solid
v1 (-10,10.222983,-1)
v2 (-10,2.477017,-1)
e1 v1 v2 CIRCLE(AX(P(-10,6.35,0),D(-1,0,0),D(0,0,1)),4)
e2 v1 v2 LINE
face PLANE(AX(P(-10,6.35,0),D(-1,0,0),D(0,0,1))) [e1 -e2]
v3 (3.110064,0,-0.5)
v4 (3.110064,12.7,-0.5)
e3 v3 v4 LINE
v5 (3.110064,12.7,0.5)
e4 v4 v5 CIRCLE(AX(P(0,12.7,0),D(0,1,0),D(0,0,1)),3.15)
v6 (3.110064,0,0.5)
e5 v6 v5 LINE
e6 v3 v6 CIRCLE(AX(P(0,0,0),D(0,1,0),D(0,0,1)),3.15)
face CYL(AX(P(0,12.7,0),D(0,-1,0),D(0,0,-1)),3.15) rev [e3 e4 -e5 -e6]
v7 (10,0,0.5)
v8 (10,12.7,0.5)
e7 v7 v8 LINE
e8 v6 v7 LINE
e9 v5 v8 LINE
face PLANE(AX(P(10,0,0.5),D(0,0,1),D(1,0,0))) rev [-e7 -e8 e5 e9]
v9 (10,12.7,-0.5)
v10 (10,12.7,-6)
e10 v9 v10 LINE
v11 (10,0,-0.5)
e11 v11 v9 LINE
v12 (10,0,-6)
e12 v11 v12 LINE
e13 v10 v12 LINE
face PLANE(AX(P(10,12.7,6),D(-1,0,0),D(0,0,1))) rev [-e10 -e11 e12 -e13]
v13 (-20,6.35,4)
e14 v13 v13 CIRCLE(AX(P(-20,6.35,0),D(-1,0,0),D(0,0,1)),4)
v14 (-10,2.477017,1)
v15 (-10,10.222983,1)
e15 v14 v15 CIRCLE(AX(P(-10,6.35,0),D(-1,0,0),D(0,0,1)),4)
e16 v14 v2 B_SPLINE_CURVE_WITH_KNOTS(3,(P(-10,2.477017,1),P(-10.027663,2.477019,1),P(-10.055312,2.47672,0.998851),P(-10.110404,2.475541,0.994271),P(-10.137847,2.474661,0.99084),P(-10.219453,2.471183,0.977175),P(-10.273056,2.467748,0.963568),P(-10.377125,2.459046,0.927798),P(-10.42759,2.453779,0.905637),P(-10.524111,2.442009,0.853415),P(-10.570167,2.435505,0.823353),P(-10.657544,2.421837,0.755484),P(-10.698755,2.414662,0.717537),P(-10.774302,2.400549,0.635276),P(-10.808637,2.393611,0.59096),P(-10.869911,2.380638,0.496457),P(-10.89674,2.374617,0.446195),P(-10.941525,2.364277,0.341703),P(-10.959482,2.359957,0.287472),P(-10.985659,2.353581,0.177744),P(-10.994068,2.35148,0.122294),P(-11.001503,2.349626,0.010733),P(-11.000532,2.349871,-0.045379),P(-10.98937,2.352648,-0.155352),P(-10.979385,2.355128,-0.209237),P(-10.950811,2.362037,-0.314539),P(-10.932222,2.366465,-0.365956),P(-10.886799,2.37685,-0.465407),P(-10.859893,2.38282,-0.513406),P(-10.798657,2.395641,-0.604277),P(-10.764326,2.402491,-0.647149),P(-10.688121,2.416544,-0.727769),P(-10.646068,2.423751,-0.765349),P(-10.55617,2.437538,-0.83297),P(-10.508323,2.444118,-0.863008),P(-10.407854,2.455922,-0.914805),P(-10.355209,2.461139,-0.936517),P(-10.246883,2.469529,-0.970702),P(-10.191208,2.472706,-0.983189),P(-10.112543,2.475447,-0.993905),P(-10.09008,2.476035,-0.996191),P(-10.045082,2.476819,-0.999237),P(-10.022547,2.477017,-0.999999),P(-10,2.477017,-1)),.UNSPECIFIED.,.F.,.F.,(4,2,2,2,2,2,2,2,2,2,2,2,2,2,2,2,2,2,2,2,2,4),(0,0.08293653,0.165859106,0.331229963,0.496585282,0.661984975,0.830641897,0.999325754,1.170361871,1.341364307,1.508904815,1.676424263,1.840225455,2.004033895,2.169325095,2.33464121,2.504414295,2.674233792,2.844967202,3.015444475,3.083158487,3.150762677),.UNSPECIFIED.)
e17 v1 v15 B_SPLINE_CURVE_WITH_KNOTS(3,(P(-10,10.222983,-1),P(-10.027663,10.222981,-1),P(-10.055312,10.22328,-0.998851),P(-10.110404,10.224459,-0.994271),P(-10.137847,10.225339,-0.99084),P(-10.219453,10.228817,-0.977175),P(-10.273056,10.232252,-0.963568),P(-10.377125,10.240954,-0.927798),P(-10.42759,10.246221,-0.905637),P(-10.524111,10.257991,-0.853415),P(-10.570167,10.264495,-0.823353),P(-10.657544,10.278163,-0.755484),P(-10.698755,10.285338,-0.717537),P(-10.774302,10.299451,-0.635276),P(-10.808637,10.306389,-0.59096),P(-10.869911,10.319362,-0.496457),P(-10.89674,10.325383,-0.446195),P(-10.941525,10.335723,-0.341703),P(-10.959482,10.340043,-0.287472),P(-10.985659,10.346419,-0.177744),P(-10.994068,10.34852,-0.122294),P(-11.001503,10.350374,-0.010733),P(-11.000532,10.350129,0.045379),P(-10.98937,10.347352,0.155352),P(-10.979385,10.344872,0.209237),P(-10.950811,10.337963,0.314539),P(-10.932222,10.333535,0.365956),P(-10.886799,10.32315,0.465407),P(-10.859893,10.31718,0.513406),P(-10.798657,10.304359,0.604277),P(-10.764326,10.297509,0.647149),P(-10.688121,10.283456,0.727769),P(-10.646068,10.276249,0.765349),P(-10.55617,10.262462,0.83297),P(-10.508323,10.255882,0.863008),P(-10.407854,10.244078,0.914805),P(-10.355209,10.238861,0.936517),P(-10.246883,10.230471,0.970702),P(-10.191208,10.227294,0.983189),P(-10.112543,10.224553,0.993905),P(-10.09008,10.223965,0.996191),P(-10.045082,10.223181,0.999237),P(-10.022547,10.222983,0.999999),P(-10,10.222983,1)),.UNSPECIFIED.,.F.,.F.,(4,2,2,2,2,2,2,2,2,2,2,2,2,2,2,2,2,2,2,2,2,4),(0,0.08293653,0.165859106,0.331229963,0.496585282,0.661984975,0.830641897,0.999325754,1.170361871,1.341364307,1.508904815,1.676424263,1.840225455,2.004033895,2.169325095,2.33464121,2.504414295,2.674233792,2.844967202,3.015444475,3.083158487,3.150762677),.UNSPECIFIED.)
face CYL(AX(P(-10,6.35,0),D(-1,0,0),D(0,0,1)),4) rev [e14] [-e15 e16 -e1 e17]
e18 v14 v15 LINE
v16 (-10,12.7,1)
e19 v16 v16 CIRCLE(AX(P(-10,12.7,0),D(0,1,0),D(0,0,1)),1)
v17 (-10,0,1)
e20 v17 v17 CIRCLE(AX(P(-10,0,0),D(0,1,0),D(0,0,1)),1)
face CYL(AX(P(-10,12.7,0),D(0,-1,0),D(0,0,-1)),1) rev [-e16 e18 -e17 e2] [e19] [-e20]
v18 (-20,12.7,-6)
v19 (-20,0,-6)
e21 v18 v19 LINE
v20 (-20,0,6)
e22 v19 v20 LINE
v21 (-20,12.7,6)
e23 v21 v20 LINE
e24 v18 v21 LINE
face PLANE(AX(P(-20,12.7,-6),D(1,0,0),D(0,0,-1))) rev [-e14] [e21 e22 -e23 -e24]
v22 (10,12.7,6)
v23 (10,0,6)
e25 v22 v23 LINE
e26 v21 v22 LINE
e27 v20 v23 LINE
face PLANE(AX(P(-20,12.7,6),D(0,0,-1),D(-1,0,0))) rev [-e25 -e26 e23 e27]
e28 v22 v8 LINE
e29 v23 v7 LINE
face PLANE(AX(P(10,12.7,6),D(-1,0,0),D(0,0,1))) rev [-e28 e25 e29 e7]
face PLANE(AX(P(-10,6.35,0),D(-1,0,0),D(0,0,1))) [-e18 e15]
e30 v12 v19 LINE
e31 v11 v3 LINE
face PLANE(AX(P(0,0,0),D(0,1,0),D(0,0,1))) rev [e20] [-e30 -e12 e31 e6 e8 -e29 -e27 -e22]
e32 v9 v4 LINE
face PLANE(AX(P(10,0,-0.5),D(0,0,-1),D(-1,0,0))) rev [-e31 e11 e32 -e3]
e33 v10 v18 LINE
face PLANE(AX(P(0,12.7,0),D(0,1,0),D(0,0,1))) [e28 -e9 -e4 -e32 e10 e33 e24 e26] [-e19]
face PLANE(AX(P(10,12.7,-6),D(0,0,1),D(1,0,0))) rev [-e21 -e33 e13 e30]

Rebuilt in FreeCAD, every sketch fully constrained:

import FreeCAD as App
import Part
import Sketcher


def add_polygon(sketch, points):
    """Adds a closed chain of lines whose ends are joined by coincident constraints."""
    first, n = sketch.GeometryCount, len(points)
    for a, b in zip(points, points[1:] + points[:1]):
        sketch.addGeometry(Part.LineSegment(App.Vector(*a, 0), App.Vector(*b, 0)), False)
    for i in range(n):
        sketch.addConstraint(Sketcher.Constraint("Coincident", first + i, 2, first + (i + 1) % n, 1))

doc = App.newDocument("Part")
params = doc.addObject("Spreadsheet::Sheet", "Params")
for row, (alias, value) in enumerate([
    ("sketch1_diameter", "2 mm"),
    ("sketch1_diameter2", "6.3 mm"),
    ("sketch1_width", "30 mm"),
    ("sketch1_height", "12 mm"),
    ("pad1_length", "12.7 mm"),
    ("sketch2_diameter", "8 mm"),
    ("pocket1_length", "10 mm"),
    ("sketch3_height", "1 mm"),
], start=1):
    params.set(f"A{row}", alias)
    params.set(f"B{row}", "=" + value)
    params.setAlias(f"B{row}", alias)

body = doc.addObject("PartDesign::Body", "Body")

sketch1 = body.newObject("Sketcher::SketchObject", "Sketch")
sketch1.AttachmentSupport = (doc.getObject("XZ_Plane"), [""])
sketch1.MapMode = "FlatFace"
add_polygon(sketch1, [(-20, -6), (-20, 6), (10, 6), (10, -6)])
sketch1.addGeometry(Part.Circle(App.Vector(-10, 0, 0), App.Vector(0, 0, 1), 1), False)
sketch1.addGeometry(Part.Circle(App.Vector(0, 0, 0), App.Vector(0, 0, 1), 3.15), False)
sketch1.addConstraint([
    Sketcher.Constraint("Vertical", 0),
    Sketcher.Constraint("Horizontal", 1),
    Sketcher.Constraint("Vertical", 2),
    Sketcher.Constraint("Horizontal", 3),
    Sketcher.Constraint("Coincident", 5, 3, -1, 1),
    Sketcher.Constraint("PointOnObject", 4, 3, -1),
    Sketcher.Constraint("Diameter", 4, 2.0),
    Sketcher.Constraint("Diameter", 5, 6.3),
    Sketcher.Constraint("DistanceX", 1, 1, 1, 2, 30.0),
    Sketcher.Constraint("DistanceY", 0, 1, 0, 2, 12.0),
    Sketcher.Constraint("DistanceX", 4, 3, -1, 1, 10.0),
    Sketcher.Constraint("DistanceX", 0, 2, -1, 1, 20.0),
    Sketcher.Constraint("DistanceY", -1, 1, 0, 2, 6.0),
])
sketch1.setExpression("Constraints[10]", "Params.sketch1_diameter")
sketch1.setExpression("Constraints[11]", "Params.sketch1_diameter2")
sketch1.setExpression("Constraints[12]", "Params.sketch1_width")
sketch1.setExpression("Constraints[13]", "Params.sketch1_height")
pad1 = body.newObject("PartDesign::Pad", "Pad")
pad1.Profile = sketch1
pad1.setExpression("Length", "Params.pad1_length")
pad1.Reversed = True

sketch2 = body.newObject("Sketcher::SketchObject", "Sketch001")
sketch2.AttachmentSupport = (doc.getObject("YZ_Plane"), [""])
sketch2.MapMode = "FlatFace"
sketch2.AttachmentOffset = App.Placement(App.Vector(0, 0, -20), App.Rotation())
sketch2.addGeometry(Part.Circle(App.Vector(6.35, 0, 0), App.Vector(0, 0, 1), 4), False)
sketch2.addConstraint([
    Sketcher.Constraint("PointOnObject", 0, 3, -1),
    Sketcher.Constraint("Diameter", 0, 8.0),
    Sketcher.Constraint("DistanceX", -1, 1, 0, 3, 6.35),
])
sketch2.setExpression("Constraints[1]", "Params.sketch2_diameter")
pocket1 = body.newObject("PartDesign::Pocket", "Pocket")
pocket1.Profile = sketch2
pocket1.setExpression("Length", "Params.pocket1_length")
pocket1.Reversed = True

sketch3 = body.newObject("Sketcher::SketchObject", "Sketch002")
sketch3.AttachmentSupport = (doc.getObject("XZ_Plane"), [""])
sketch3.MapMode = "FlatFace"
sketch3.AttachmentOffset = App.Placement(App.Vector(0, 0, -12.7), App.Rotation())
add_polygon(sketch3, [(3.110064, -0.5), (3.110064, 0.5), (10, 0.5), (10, -0.5)])
sketch3.addConstraint([
    Sketcher.Constraint("Vertical", 0),
    Sketcher.Constraint("Horizontal", 1),
    Sketcher.Constraint("Vertical", 2),
    Sketcher.Constraint("Horizontal", 3),
    Sketcher.Constraint("DistanceY", 0, 1, 0, 2, 1.0),
    Sketcher.Constraint("DistanceX", -1, 1, 1, 2, 10.0),
    Sketcher.Constraint("DistanceY", -1, 1, 0, 2, 0.5),
    Sketcher.Constraint("DistanceX", 1, 1, 1, 2, 6.889936),
])
sketch3.setExpression("Constraints[8]", "Params.sketch3_height")
pocket2 = body.newObject("PartDesign::Pocket", "Pocket001")
pocket2.Profile = sketch3
pocket2.Type = "ThroughAll"
pocket2.Reversed = True

doc.recompute()
